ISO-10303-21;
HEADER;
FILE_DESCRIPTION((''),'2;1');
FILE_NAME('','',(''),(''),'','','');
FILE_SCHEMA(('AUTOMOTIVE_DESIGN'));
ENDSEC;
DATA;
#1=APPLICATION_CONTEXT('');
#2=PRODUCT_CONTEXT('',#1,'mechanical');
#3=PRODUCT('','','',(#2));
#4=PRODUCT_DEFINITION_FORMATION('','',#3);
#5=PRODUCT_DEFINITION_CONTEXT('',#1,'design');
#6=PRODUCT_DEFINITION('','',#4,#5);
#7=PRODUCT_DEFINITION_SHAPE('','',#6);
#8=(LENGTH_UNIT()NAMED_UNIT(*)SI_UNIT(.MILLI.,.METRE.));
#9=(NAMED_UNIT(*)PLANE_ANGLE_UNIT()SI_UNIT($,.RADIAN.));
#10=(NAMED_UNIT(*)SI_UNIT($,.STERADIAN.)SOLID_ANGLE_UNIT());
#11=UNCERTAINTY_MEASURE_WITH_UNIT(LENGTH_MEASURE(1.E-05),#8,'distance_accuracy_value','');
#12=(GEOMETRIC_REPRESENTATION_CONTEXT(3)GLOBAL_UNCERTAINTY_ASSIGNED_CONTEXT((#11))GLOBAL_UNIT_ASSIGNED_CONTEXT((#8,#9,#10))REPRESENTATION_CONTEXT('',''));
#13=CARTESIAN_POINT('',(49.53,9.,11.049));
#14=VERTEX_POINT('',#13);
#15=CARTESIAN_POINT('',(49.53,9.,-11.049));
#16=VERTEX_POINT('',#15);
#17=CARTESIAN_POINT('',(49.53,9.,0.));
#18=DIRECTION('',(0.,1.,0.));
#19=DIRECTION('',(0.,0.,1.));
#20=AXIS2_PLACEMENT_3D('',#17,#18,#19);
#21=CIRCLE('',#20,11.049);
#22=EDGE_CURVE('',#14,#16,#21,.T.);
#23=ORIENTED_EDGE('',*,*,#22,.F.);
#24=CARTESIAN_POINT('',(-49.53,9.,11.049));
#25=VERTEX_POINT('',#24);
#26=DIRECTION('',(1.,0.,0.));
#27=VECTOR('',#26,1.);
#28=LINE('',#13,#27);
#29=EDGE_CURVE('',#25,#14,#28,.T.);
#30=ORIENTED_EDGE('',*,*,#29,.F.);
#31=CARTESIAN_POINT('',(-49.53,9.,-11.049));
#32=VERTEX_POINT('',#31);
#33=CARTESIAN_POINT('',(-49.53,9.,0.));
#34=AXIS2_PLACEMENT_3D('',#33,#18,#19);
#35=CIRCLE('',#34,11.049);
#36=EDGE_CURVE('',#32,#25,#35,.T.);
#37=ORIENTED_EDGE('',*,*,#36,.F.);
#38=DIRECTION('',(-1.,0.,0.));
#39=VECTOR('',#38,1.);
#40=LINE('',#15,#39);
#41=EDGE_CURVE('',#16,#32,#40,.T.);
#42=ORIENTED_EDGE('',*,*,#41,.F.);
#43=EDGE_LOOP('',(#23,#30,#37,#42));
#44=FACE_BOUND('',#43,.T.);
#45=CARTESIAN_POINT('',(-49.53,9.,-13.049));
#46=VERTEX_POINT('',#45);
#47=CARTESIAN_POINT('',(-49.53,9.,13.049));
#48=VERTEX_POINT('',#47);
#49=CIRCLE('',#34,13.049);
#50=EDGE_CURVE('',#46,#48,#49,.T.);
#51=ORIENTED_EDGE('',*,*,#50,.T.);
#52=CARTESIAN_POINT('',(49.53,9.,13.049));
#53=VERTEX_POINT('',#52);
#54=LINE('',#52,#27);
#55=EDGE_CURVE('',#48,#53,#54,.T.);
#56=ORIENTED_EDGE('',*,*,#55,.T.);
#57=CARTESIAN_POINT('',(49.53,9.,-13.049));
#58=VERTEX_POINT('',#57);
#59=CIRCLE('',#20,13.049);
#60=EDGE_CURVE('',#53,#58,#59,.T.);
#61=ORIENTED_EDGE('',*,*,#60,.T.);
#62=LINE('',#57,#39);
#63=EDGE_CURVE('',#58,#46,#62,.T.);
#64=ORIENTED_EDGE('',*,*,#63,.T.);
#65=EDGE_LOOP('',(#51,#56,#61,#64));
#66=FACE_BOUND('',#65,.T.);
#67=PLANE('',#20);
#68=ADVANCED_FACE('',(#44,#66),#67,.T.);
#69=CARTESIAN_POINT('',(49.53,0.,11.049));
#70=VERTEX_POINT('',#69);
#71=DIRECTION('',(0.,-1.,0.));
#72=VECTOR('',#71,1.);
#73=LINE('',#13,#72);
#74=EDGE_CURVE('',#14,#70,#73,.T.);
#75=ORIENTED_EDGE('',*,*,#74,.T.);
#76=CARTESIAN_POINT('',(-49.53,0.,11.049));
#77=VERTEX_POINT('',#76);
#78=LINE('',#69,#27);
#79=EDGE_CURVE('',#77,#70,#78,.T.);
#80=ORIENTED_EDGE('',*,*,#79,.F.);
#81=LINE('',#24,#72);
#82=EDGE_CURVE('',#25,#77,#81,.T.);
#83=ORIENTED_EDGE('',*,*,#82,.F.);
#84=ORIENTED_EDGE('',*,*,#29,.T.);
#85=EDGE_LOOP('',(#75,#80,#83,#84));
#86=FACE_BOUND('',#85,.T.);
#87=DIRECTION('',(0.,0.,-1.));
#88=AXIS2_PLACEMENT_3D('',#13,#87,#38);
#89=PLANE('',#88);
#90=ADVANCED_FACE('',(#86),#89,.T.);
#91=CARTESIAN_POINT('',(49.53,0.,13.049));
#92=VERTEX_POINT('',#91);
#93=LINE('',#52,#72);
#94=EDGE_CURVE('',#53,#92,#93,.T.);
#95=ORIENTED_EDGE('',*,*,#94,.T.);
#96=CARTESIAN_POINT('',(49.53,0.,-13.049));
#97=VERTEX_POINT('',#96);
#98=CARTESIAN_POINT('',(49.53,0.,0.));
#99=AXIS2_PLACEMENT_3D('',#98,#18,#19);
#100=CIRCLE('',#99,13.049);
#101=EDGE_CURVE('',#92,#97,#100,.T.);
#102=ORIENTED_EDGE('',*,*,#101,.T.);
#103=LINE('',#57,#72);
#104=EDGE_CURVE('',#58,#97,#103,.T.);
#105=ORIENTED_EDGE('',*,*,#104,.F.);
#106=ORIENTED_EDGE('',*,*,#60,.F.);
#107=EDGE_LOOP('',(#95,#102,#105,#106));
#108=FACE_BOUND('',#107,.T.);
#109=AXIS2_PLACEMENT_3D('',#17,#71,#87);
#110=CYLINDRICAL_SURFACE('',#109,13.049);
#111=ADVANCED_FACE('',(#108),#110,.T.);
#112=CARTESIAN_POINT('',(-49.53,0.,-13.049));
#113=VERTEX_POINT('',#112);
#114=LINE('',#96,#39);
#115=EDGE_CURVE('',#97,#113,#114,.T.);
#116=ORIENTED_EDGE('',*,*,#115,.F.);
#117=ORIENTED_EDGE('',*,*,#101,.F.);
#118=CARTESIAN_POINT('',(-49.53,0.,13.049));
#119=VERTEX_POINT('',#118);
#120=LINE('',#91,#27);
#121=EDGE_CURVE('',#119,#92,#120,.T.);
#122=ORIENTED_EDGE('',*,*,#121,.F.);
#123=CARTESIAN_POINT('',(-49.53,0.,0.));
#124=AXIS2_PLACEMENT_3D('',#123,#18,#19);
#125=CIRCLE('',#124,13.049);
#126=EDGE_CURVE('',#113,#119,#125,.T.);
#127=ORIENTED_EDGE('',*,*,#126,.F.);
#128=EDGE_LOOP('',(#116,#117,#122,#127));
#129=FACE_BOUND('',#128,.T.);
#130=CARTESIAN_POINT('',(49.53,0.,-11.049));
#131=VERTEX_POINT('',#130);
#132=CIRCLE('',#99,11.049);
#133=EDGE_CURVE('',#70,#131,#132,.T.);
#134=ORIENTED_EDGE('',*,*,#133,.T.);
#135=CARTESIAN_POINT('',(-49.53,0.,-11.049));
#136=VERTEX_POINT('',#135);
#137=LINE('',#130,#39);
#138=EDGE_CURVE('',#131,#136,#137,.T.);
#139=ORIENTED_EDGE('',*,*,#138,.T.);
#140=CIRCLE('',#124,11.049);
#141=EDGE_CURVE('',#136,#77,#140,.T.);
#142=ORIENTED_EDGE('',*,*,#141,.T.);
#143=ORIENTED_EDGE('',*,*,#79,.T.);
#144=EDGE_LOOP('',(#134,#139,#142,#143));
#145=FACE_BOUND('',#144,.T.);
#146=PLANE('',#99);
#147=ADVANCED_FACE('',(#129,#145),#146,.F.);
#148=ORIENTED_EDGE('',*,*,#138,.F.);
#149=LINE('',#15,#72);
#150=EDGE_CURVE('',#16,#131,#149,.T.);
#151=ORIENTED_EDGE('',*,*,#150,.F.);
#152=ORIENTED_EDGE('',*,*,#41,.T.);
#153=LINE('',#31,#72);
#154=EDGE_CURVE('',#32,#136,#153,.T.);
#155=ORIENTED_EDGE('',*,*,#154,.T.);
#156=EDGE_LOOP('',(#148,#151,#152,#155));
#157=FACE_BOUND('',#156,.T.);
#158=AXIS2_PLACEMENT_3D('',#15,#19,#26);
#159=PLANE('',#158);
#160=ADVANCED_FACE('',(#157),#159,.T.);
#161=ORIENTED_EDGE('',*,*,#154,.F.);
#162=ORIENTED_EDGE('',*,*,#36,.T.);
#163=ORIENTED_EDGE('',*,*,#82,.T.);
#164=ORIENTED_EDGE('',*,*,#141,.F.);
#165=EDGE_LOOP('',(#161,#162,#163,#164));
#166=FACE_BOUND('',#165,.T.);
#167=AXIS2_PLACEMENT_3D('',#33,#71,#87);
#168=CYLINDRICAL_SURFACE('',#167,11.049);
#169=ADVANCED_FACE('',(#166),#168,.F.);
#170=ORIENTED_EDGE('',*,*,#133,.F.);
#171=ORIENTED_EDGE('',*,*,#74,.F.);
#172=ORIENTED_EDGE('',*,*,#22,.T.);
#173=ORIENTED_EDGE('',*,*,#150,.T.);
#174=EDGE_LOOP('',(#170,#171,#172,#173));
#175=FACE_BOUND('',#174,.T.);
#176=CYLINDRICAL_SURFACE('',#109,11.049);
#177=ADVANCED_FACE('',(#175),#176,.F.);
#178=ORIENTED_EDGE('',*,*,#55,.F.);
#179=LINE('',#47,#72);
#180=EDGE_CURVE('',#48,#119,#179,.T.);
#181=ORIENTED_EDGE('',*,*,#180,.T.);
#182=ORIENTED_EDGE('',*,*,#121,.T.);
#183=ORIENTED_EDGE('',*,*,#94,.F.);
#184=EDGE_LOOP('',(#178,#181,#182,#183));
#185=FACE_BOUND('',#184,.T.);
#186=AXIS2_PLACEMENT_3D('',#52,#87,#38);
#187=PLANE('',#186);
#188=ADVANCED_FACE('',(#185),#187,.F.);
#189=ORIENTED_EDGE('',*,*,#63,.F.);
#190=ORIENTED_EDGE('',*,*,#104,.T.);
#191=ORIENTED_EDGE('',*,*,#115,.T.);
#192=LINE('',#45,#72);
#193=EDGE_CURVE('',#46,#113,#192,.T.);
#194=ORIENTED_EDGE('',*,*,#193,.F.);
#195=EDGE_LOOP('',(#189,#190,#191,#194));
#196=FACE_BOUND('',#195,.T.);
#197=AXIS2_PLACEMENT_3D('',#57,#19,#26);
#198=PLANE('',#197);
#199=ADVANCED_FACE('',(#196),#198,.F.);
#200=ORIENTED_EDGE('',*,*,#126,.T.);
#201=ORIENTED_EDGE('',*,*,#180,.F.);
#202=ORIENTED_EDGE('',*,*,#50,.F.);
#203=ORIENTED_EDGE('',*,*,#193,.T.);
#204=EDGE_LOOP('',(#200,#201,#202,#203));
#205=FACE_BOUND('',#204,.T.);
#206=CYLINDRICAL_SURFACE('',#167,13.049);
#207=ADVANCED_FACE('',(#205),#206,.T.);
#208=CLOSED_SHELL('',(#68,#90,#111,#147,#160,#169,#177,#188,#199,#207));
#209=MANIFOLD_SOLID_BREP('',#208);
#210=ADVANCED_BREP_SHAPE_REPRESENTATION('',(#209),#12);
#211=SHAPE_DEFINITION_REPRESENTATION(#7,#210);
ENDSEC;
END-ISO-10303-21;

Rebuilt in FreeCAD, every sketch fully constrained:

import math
import FreeCAD as App
import Part
import Sketcher
Q = App.Units.Quantity

doc = App.newDocument("Part")
body = doc.addObject("PartDesign::Body", "Body")

# Sketch on XZ plane
sketch1 = body.newObject("Sketcher::SketchObject", "Sketch")
sketch1.AttachmentSupport = (doc.getObject("XZ_Plane"), [""])
sketch1.MapMode = "FlatFace"
sketch1.addGeometry(Part.LineSegment(App.Vector(-50, 13, 0), App.Vector(50, 13, 0)), False)
sketch1.addGeometry(Part.ArcOfCircle(Part.Circle(App.Vector(50, 0, 0), App.Vector(0, 0, 1), 13), math.radians(-90), math.radians(90)), False)
sketch1.addGeometry(Part.LineSegment(App.Vector(50, -13, 0), App.Vector(-50, -13, 0)), False)
sketch1.addGeometry(Part.ArcOfCircle(Part.Circle(App.Vector(-50, 0, 0), App.Vector(0, 0, 1), 13), math.radians(90), math.radians(270)), False)
sketch1.addGeometry(Part.LineSegment(App.Vector(50, 11, 0), App.Vector(-50, 11, 0)), False)
sketch1.addGeometry(Part.ArcOfCircle(Part.Circle(App.Vector(-50, 0, 0), App.Vector(0, 0, 1), 11), math.radians(90), math.radians(270)), False)
sketch1.addGeometry(Part.LineSegment(App.Vector(-50, -11, 0), App.Vector(50, -11, 0)), False)
sketch1.addGeometry(Part.ArcOfCircle(Part.Circle(App.Vector(50, 0, 0), App.Vector(0, 0, 1), 11), math.radians(-90), math.radians(90)), False)
sketch1.addConstraint(Sketcher.Constraint("Tangent", 0, 2, 1, 2))
sketch1.addConstraint(Sketcher.Constraint("Tangent", 1, 1, 2, 1))
sketch1.addConstraint(Sketcher.Constraint("Tangent", 2, 2, 3, 2))
sketch1.addConstraint(Sketcher.Constraint("Tangent", 3, 1, 0, 1))
sketch1.addConstraint(Sketcher.Constraint("Tangent", 4, 2, 5, 1))
sketch1.addConstraint(Sketcher.Constraint("Tangent", 5, 2, 6, 1))
sketch1.addConstraint(Sketcher.Constraint("Tangent", 6, 2, 7, 1))
sketch1.addConstraint(Sketcher.Constraint("Tangent", 7, 2, 4, 1))
sketch1.addConstraint(Sketcher.Constraint("Horizontal", 0))
sketch1.addConstraint(Sketcher.Constraint("Horizontal", 2))
sketch1.addConstraint(Sketcher.Constraint("Horizontal", 4))
sketch1.addConstraint(Sketcher.Constraint("Horizontal", 6))
sketch1.addConstraint(Sketcher.Constraint("Coincident", 5, 3, 3, 3))
sketch1.addConstraint(Sketcher.Constraint("Symmetric", 1, 3, 3, 3, -1, 1))
sketch1.addConstraint(Sketcher.Constraint("Vertical", 7, 3, 0, 2))
sketch1.addConstraint(Sketcher.Constraint("DistanceX", 0, 1, 0, 2, Q("3.9 in")))
sketch1.addConstraint(Sketcher.Constraint("Radius", 5, Q("0.435 in")))
sketch1.addConstraint(Sketcher.Constraint("Radius", 1, Q("13.049 mm")))
pad1 = body.newObject("PartDesign::Pad", "Pad")
pad1.Profile = sketch1
pad1.Length = 9
pad1.Reversed = True

doc.recompute()
